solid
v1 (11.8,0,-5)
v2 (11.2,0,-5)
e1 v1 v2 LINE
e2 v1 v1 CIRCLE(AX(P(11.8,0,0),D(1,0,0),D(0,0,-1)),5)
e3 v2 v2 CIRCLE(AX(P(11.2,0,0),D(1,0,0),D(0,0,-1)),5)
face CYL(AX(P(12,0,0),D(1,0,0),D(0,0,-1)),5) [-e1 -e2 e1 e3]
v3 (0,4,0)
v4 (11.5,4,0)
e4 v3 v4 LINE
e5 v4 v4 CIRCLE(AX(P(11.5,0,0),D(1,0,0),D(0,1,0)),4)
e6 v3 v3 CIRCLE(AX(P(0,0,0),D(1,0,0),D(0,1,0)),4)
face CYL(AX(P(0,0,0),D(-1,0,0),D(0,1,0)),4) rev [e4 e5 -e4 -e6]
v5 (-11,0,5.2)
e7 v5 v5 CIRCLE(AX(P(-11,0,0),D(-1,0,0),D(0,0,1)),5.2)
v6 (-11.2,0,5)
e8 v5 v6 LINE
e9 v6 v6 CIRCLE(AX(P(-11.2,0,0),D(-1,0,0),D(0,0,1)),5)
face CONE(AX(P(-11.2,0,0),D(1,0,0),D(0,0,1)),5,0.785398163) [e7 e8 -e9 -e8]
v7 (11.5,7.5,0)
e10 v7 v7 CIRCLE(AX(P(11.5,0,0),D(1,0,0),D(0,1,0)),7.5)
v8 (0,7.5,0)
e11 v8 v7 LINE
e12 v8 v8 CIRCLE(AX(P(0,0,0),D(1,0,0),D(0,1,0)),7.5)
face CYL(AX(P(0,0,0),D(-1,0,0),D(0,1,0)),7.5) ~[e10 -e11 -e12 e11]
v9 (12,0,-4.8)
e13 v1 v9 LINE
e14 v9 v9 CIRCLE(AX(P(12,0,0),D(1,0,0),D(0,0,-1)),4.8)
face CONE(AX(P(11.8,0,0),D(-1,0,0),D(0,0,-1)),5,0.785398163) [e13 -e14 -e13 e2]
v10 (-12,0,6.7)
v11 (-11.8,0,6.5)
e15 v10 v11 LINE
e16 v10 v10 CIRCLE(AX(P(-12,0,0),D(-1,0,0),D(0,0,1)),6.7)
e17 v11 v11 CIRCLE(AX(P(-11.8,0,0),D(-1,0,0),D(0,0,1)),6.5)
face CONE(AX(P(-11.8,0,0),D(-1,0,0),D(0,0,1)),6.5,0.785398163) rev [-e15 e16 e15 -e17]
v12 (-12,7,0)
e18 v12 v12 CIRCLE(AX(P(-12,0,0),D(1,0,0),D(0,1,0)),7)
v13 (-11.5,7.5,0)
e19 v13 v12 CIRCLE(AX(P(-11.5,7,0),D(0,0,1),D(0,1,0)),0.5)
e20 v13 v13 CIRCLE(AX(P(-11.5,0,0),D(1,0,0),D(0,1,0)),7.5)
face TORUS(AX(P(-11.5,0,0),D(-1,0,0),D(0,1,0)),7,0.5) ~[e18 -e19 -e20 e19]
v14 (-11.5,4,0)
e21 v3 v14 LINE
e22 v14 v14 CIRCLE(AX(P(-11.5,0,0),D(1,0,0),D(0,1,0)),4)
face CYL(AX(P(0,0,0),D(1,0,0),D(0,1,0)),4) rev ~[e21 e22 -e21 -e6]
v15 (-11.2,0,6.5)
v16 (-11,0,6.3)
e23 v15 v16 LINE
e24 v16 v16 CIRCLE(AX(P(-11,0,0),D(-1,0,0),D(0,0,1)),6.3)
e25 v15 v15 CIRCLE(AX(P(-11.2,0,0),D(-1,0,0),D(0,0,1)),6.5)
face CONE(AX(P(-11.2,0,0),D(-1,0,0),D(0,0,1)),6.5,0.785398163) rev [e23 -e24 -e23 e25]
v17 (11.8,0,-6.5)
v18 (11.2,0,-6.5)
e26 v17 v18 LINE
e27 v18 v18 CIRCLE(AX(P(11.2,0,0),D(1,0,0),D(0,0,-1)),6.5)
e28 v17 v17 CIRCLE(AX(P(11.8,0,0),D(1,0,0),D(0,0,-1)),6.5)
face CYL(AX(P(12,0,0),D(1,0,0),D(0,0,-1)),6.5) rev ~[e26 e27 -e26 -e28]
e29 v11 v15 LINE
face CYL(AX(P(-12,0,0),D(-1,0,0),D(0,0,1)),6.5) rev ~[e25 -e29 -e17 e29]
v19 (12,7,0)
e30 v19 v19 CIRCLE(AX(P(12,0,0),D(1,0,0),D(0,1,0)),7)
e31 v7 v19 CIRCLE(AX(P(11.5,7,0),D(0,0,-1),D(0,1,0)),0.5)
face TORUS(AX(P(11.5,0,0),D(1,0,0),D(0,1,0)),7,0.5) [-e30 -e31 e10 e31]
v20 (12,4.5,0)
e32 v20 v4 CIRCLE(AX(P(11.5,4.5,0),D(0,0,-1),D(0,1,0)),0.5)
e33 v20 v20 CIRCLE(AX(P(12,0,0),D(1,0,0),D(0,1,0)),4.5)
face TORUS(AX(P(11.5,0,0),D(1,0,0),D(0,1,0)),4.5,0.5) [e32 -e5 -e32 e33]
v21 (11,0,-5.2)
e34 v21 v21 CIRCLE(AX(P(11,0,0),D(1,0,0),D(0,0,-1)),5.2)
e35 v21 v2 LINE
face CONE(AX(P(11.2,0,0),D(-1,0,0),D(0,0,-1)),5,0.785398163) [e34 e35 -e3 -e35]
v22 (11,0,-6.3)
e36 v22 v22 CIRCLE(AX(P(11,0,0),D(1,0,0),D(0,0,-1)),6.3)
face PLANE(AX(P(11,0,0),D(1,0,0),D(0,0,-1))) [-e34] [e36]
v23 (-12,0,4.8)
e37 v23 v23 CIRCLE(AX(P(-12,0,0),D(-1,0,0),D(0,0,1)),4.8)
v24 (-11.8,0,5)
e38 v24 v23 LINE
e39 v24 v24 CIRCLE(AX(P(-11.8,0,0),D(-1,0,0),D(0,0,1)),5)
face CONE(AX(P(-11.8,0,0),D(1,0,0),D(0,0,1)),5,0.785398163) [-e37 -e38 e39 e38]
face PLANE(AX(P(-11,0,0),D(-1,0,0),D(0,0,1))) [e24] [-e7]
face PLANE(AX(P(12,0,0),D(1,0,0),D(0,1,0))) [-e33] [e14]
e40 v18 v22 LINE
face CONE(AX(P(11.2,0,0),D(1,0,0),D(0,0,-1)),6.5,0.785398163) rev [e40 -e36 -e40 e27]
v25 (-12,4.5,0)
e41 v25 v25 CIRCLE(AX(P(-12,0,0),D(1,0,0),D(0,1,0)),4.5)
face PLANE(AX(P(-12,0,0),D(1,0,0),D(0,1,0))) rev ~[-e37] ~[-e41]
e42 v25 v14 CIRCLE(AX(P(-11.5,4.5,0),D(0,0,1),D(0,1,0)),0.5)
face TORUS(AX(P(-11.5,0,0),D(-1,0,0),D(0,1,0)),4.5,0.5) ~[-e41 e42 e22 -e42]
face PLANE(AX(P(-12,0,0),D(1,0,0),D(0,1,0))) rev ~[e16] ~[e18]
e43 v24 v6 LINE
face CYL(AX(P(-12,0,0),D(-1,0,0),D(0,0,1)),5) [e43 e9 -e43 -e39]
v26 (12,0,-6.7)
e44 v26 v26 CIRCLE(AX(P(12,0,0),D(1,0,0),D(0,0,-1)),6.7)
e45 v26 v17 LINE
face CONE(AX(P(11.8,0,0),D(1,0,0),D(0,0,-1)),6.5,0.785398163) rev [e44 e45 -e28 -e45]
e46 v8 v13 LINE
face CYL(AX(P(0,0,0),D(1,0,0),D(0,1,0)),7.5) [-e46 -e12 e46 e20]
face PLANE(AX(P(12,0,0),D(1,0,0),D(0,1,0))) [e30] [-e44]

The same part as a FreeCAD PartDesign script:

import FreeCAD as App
import Part
import Sketcher

V = App.Vector
Q = App.Units.Quantity


def edges_at(feature, points):
    """Names of the edges that pass closest to the given points."""
    edges = feature.Shape.Edges
    near = lambda p: min(range(len(edges)), key=lambda i: edges[i].distToShape(Part.Vertex(*p))[0])
    return sorted({f"Edge{near(p) + 1}" for p in points})

doc = App.newDocument("Part")
body = doc.addObject("PartDesign::Body", "Body")

sketch1 = body.newObject("Sketcher::SketchObject", "Sketch")
sketch1.AttachmentSupport = (doc.getObject("YZ_Plane"), [""])
sketch1.MapMode = "FlatFace"
sketch1.addGeometry(Part.Circle(V(0, 0, 0), V(0, 0, 1), 7.5), False)
sketch1.addGeometry(Part.Circle(V(0, 0, 0), V(0, 0, 1), 4), False)
sketch1.addConstraint(Sketcher.Constraint("Coincident", 0, 3, -1, 1))
sketch1.addConstraint(Sketcher.Constraint("Coincident", 1, 3, -1, 1))
sketch1.addConstraint(Sketcher.Constraint("Diameter", 0, Q("15 mm")))
sketch1.addConstraint(Sketcher.Constraint("Diameter", 1, Q("8 mm")))
pad1 = body.newObject("PartDesign::Pad", "Pad")
pad1.Profile = sketch1
pad1.Length = 24
pad1.Midplane = True

sketch2 = body.newObject("Sketcher::SketchObject", "Sketch001")
sketch2.AttachmentSupport = (doc.getObject("YZ_Plane"), [""])
sketch2.MapMode = "FlatFace"
sketch2.AttachmentOffset = App.Placement(V(0, 0, 12), App.Rotation())
sketch2.addGeometry(Part.Circle(V(0, 0, 0), V(0, 0, 1), 6), False)
sketch2.addGeometry(Part.Circle(V(0, 0, 0), V(0, 0, 1), 5), False)
sketch2.addConstraint(Sketcher.Constraint("Coincident", 0, 3, -1, 1))
sketch2.addConstraint(Sketcher.Constraint("Coincident", 1, 3, -1, 1))
sketch2.addConstraint(Sketcher.Constraint("Diameter", 0, Q("13 mm")))
sketch2.addConstraint(Sketcher.Constraint("Diameter", 1, Q("10 mm")))
pocket1 = body.newObject("PartDesign::Pocket", "Pocket")
pocket1.Profile = sketch2
pocket1.Length = 1

sketch3 = body.newObject("Sketcher::SketchObject", "Sketch002")
sketch3.AttachmentSupport = (doc.getObject("YZ_Plane"), [""])
sketch3.MapMode = "FlatFace"
sketch3.AttachmentOffset = App.Placement(V(0, 0, -12), App.Rotation())
sketch3.addGeometry(Part.Circle(V(0, 0, 0), V(0, 0, 1), 6), False)
sketch3.addGeometry(Part.Circle(V(0, 0, 0), V(0, 0, 1), 5), False)
sketch3.addConstraint(Sketcher.Constraint("Coincident", 0, 3, -1, 1))
sketch3.addConstraint(Sketcher.Constraint("Coincident", 1, 3, -1, 1))
sketch3.addConstraint(Sketcher.Constraint("Diameter", 0, Q("13 mm")))
sketch3.addConstraint(Sketcher.Constraint("Diameter", 1, Q("10 mm")))
pocket2 = body.newObject("PartDesign::Pocket", "Pocket001")
pocket2.Profile = sketch3
pocket2.Length = 1
pocket2.Reversed = True
doc.recompute()

fillet = body.newObject("PartDesign::Fillet", "Fillet")
fillet.Base = (pocket2, edges_at(pocket2, [(-12, -7.5, 0)]))
fillet.Radius = 0.5
doc.recompute()

fillet2 = body.newObject("PartDesign::Fillet", "Fillet001")
fillet2.Base = (fillet, edges_at(fillet, [(-12, -4, 0), (12, -7.5, 0), (12, -4, 0)]))
fillet2.Radius = 0.5
doc.recompute()

chamfer = body.newObject("PartDesign::Chamfer", "Chamfer")
chamfer.Base = (fillet2, edges_at(fillet2, [
    (12, 0, 5),
    (12, 0, 6.5),
    (-12, 0, -5),
    (-12, 0, -6.5),
    (-11, 0, -5),
    (-11, 0, -6.5),
    (11, 0, 6.5),
    (11, 0, 5),
]))
chamfer.Size = 0.2

doc.recompute()
